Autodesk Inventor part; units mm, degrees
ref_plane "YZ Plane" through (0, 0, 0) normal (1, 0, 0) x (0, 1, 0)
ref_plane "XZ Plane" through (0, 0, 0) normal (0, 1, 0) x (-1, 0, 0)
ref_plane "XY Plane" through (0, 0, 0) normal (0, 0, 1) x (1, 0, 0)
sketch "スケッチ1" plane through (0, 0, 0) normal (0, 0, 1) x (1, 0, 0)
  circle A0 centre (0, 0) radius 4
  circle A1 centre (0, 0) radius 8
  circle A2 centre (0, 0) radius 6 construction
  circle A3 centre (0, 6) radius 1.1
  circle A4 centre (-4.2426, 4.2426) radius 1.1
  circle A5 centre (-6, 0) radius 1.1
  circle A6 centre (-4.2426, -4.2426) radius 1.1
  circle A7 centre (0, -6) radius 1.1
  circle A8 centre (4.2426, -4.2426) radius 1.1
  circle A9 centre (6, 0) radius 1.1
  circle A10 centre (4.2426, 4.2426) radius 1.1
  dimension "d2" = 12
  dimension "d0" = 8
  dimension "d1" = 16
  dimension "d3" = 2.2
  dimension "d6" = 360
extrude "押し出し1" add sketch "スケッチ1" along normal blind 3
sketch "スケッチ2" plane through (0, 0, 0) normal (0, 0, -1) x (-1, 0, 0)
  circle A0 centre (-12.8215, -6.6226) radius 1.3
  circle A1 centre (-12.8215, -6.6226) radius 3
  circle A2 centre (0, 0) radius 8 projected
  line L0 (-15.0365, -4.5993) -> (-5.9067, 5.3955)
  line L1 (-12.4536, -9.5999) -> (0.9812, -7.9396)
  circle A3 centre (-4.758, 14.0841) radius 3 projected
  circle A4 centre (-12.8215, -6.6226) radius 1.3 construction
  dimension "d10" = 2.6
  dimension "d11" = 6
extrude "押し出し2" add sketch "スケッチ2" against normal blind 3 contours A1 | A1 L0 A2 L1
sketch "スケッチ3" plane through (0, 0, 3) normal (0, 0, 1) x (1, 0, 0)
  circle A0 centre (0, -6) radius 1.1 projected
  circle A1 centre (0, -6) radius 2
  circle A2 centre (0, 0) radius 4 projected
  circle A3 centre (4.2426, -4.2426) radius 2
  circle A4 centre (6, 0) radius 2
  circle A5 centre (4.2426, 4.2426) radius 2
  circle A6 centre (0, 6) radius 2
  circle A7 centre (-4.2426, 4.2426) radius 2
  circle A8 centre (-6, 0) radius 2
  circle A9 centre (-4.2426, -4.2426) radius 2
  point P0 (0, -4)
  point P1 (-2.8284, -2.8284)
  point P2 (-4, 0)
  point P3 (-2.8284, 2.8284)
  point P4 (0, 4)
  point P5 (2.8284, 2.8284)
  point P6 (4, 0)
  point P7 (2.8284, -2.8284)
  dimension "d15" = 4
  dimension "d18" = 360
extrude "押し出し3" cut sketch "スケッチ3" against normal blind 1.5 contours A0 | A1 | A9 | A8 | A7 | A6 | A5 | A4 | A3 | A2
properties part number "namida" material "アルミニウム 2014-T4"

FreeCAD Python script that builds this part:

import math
import FreeCAD as App
import Part
import Sketcher
from FreeCAD import Vector
Q = App.Units.Quantity

doc = App.newDocument("Part")
params = doc.addObject("Spreadsheet::Sheet", "Params")
for row, (alias, value) in enumerate([
    ("sketch1_diameter", "16 mm"),
    ("sketch1_diameter2", "8 mm"),
    ("sketch1_diameter3", "2.2 mm"),
    ("pad1_length", "3 mm"),
    ("sketch2_radius", "3 mm"),
    ("sketch2_diameter", "2.6 mm"),
    ("sketch2_radius2", "8 mm"),
    ("pad2_length", "3 mm"),
    ("sketch3_diameter", "4 mm"),
    ("sketch3_radius", "4 mm"),
    ("pocket1_length", "1.5 mm"),
], start=1):
    params.set(f"A{row}", alias)
    params.set(f"B{row}", "=" + value)
    params.setAlias(f"B{row}", alias)

body = doc.addObject("PartDesign::Body", "Body")

# Sketch on XY plane
sketch1 = body.newObject("Sketcher::SketchObject", "Sketch")
sketch1.AttachmentSupport = (doc.getObject("XY_Plane"), [""])
sketch1.MapMode = "FlatFace"
sketch1.addGeometry([
    Part.Circle(Vector(0, 0, 0), Vector(0, 0, 1), 8),  # 0
    Part.Circle(Vector(-4.2426, -4.2426, 0), Vector(0, 0, 1), 1.1),  # 1
    Part.Circle(Vector(0, -6, 0), Vector(0, 0, 1), 1.1),  # 2
    Part.Circle(Vector(4.2426, -4.2426, 0), Vector(0, 0, 1), 1.1),  # 3
    Part.Circle(Vector(-6, 0, 0), Vector(0, 0, 1), 1.1),  # 4
    Part.Circle(Vector(-4.2426, 4.2426, 0), Vector(0, 0, 1), 1.1),  # 5
    Part.Circle(Vector(0, 0, 0), Vector(0, 0, 1), 4),  # 6
    Part.Circle(Vector(6, 0, 0), Vector(0, 0, 1), 1.1),  # 7
    Part.Circle(Vector(0, 6, 0), Vector(0, 0, 1), 1.1),  # 8
    Part.Circle(Vector(4.2426, 4.2426, 0), Vector(0, 0, 1), 1.1),  # 9
], False)
sketch1.addConstraint([
    Sketcher.Constraint("Coincident", 0, 3, -1, 1),
    Sketcher.Constraint("Coincident", 6, 3, -1, 1),
    Sketcher.Constraint("Equal", 1, 2),
    Sketcher.Constraint("Equal", 2, 3),
    Sketcher.Constraint("Equal", 3, 4),
    Sketcher.Constraint("Equal", 4, 5),
    Sketcher.Constraint("Equal", 5, 7),
    Sketcher.Constraint("Equal", 7, 8),
    Sketcher.Constraint("Equal", 8, 9),
    Sketcher.Constraint("Symmetric", 3, 3, 5, 3, -1, 1),
    Sketcher.Constraint("Symmetric", 4, 3, 7, 3, -1, 1),
    Sketcher.Constraint("Symmetric", 2, 3, 8, 3, -1, 1),
    Sketcher.Constraint("Symmetric", 1, 3, 9, 3, -1, 1),
    Sketcher.Constraint("Symmetric", 1, 3, 3, 3, -2),
    Sketcher.Constraint("PointOnObject", 2, 3, -2),
    Sketcher.Constraint("PointOnObject", 4, 3, -1),
    Sketcher.Constraint("Diameter", 0, 16.0),
    Sketcher.Constraint("Diameter", 6, 8.0),
    Sketcher.Constraint("Diameter", 1, 2.2),
    Sketcher.Constraint("DistanceY", 2, 3, -1, 1, 6.0),
    Sketcher.Constraint("DistanceX", 4, 3, -1, 1, 6.0),
    Sketcher.Constraint("DistanceX", 1, 3, -1, 1, 4.2426),
    Sketcher.Constraint("DistanceY", 1, 3, -1, 1, 4.2426),
])
sketch1.setExpression("Constraints[16]", "Params.sketch1_diameter")
sketch1.setExpression("Constraints[17]", "Params.sketch1_diameter2")
sketch1.setExpression("Constraints[18]", "Params.sketch1_diameter3")
pad1 = body.newObject("PartDesign::Pad", "Pad")
pad1.Profile = sketch1
pad1.setExpression("Length", "Params.pad1_length")

# Sketch on XY plane
sketch2 = body.newObject("Sketcher::SketchObject", "Sketch001")
sketch2.AttachmentSupport = (doc.getObject("XY_Plane"), [""])
sketch2.MapMode = "FlatFace"
sketch2.addGeometry([
    Part.ArcOfCircle(Part.Circle(Vector(12.8215, -6.6226, 0), Vector(0, 0, 1), 3), math.radians(-97.044236), math.radians(42.410254)),  # 0
    Part.LineSegment(Vector(12.4536, -9.5999, 0), Vector(-0.9812, -7.9396, 0)),  # 1
    Part.ArcOfCircle(Part.Circle(Vector(0, 0, 0), Vector(0, 0, 1), 8), math.radians(-97.045066), math.radians(42.410269)),  # 2
    Part.LineSegment(Vector(5.9067, 5.3955, 0), Vector(15.0365, -4.5993, 0)),  # 3
    Part.Circle(Vector(12.8215, -6.6226, 0), Vector(0, 0, 1), 1.3),  # 4
], False)
sketch2.addConstraint([
    Sketcher.Constraint("Tangent", 0, 1, 1, 1),
    Sketcher.Constraint("Tangent", 1, 2, 2, 1),
    Sketcher.Constraint("Tangent", 2, 2, 3, 1),
    Sketcher.Constraint("Tangent", 3, 2, 0, 2),
    Sketcher.Constraint("Coincident", 2, 3, -1, 1),
    Sketcher.Constraint("Coincident", 4, 3, 0, 3),
    Sketcher.Constraint("Radius", 0, 3.0),
    Sketcher.Constraint("Diameter", 4, 2.6),
    Sketcher.Constraint("Radius", 2, 8.0),
    Sketcher.Constraint("DistanceY", 0, 1, -1, 1, 9.6),
    Sketcher.Constraint("Angle", 3, Q("-47.5897 deg")),
])
sketch2.setExpression("Constraints[6]", "Params.sketch2_radius")
sketch2.setExpression("Constraints[7]", "Params.sketch2_diameter")
sketch2.setExpression("Constraints[8]", "Params.sketch2_radius2")
pad2 = body.newObject("PartDesign::Pad", "Pad001")
pad2.Profile = sketch2
pad2.setExpression("Length", "Params.pad2_length")

# Sketch on XY plane
sketch3 = body.newObject("Sketcher::SketchObject", "Sketch002")
sketch3.AttachmentSupport = (doc.getObject("XY_Plane"), [""])
sketch3.MapMode = "FlatFace"
sketch3.AttachmentOffset = App.Placement(Vector(0, 0, 3), App.Rotation())
sketch3.addGeometry([
    Part.Circle(Vector(0, -6, 0), Vector(0, 0, 1), 2),  # 0
    Part.Circle(Vector(-4.2426, -4.2426, 0), Vector(0, 0, 1), 2),  # 1
    Part.Circle(Vector(-6, 0, 0), Vector(0, 0, 1), 2),  # 2
    Part.Circle(Vector(-4.2426, 4.2426, 0), Vector(0, 0, 1), 2),  # 3
    Part.Circle(Vector(0, 6, 0), Vector(0, 0, 1), 2),  # 4
    Part.Circle(Vector(4.2426, 4.2426, 0), Vector(0, 0, 1), 2),  # 5
    Part.Circle(Vector(6, 0, 0), Vector(0, 0, 1), 2),  # 6
    Part.Circle(Vector(4.2426, -4.2426, 0), Vector(0, 0, 1), 2),  # 7
    Part.ArcOfCircle(Part.Circle(Vector(0, 0, 0), Vector(0, 0, 1), 4), math.radians(-135), math.radians(-90)),  # 8
    Part.ArcOfCircle(Part.Circle(Vector(0, 0, 0), Vector(0, 0, 1), 4), math.radians(-90), math.radians(-45)),  # 9
    Part.ArcOfCircle(Part.Circle(Vector(0, 0, 0), Vector(0, 0, 1), 4), math.radians(-45), math.radians(0)),  # 10
    Part.ArcOfCircle(Part.Circle(Vector(0, 0, 0), Vector(0, 0, 1), 4), math.radians(0), math.radians(45)),  # 11
    Part.ArcOfCircle(Part.Circle(Vector(0, 0, 0), Vector(0, 0, 1), 4), math.radians(45), math.radians(90)),  # 12
    Part.ArcOfCircle(Part.Circle(Vector(0, 0, 0), Vector(0, 0, 1), 4), math.radians(90), math.radians(135)),  # 13
    Part.ArcOfCircle(Part.Circle(Vector(0, 0, 0), Vector(0, 0, 1), 4), math.radians(135), math.radians(180)),  # 14
    Part.ArcOfCircle(Part.Circle(Vector(0, 0, 0), Vector(0, 0, 1), 4), math.radians(180), math.radians(225)),  # 15
], False)
sketch3.addConstraint([
    Sketcher.Constraint("Tangent", 8, 2, 9, 1),
    Sketcher.Constraint("Tangent", 9, 2, 10, 1),
    Sketcher.Constraint("Tangent", 10, 2, 11, 1),
    Sketcher.Constraint("Tangent", 11, 2, 12, 1),
    Sketcher.Constraint("Tangent", 12, 2, 13, 1),
    Sketcher.Constraint("Tangent", 13, 2, 14, 1),
    Sketcher.Constraint("Tangent", 14, 2, 15, 1),
    Sketcher.Constraint("Tangent", 15, 2, 8, 1),
    Sketcher.Constraint("Coincident", 8, 3, -1, 1),
    Sketcher.Constraint("Coincident", 10, 3, -1, 1),
    Sketcher.Constraint("Coincident", 12, 3, -1, 1),
    Sketcher.Constraint("Equal", 0, 1),
    Sketcher.Constraint("Equal", 1, 2),
    Sketcher.Constraint("Equal", 2, 3),
    Sketcher.Constraint("Equal", 3, 4),
    Sketcher.Constraint("Equal", 4, 5),
    Sketcher.Constraint("Equal", 5, 6),
    Sketcher.Constraint("Equal", 6, 7),
    Sketcher.Constraint("Equal", 12, 13),
    Sketcher.Constraint("Symmetric", 0, 3, 4, 3, -1, 1),
    Sketcher.Constraint("Symmetric", 1, 3, 5, 3, -1, 1),
    Sketcher.Constraint("Symmetric", 2, 3, 6, 3, -1, 1),
    Sketcher.Constraint("Symmetric", 3, 3, 7, 3, -1, 1),
    Sketcher.Constraint("Symmetric", 3, 3, 5, 3, -2),
    Sketcher.Constraint("PointOnObject", 0, 3, -2),
    Sketcher.Constraint("PointOnObject", 2, 3, -1),
    Sketcher.Constraint("PointOnObject", 8, 2, -2),
    Sketcher.Constraint("PointOnObject", 10, 2, -1),
    Sketcher.Constraint("PointOnObject", 12, 2, -2),
    Sketcher.Constraint("PointOnObject", 14, 2, -1),
    Sketcher.Constraint("Horizontal", 11, 2, 13, 2),
    Sketcher.Constraint("Horizontal", 9, 2, 15, 2),
    Sketcher.Constraint("Vertical", 9, 2, 11, 2),
    Sketcher.Constraint("Diameter", 0, 4.0),
    Sketcher.Constraint("Radius", 8, 4.0),
    Sketcher.Constraint("DistanceY", 0, 3, -1, 1, 6.0),
    Sketcher.Constraint("DistanceX", 2, 3, -1, 1, 6.0),
    Sketcher.Constraint("DistanceX", 1, 3, -1, 1, 4.2426),
    Sketcher.Constraint("DistanceY", 1, 3, -1, 1, 4.2426),
    Sketcher.Constraint("DistanceX", -1, 1, 9, 2, 2.8284),
])
sketch3.setExpression("Constraints[33]", "Params.sketch3_diameter")
sketch3.setExpression("Constraints[34]", "Params.sketch3_radius")
pocket1 = body.newObject("PartDesign::Pocket", "Pocket")
pocket1.Profile = sketch3
pocket1.setExpression("Length", "Params.pocket1_length")

doc.recompute()
